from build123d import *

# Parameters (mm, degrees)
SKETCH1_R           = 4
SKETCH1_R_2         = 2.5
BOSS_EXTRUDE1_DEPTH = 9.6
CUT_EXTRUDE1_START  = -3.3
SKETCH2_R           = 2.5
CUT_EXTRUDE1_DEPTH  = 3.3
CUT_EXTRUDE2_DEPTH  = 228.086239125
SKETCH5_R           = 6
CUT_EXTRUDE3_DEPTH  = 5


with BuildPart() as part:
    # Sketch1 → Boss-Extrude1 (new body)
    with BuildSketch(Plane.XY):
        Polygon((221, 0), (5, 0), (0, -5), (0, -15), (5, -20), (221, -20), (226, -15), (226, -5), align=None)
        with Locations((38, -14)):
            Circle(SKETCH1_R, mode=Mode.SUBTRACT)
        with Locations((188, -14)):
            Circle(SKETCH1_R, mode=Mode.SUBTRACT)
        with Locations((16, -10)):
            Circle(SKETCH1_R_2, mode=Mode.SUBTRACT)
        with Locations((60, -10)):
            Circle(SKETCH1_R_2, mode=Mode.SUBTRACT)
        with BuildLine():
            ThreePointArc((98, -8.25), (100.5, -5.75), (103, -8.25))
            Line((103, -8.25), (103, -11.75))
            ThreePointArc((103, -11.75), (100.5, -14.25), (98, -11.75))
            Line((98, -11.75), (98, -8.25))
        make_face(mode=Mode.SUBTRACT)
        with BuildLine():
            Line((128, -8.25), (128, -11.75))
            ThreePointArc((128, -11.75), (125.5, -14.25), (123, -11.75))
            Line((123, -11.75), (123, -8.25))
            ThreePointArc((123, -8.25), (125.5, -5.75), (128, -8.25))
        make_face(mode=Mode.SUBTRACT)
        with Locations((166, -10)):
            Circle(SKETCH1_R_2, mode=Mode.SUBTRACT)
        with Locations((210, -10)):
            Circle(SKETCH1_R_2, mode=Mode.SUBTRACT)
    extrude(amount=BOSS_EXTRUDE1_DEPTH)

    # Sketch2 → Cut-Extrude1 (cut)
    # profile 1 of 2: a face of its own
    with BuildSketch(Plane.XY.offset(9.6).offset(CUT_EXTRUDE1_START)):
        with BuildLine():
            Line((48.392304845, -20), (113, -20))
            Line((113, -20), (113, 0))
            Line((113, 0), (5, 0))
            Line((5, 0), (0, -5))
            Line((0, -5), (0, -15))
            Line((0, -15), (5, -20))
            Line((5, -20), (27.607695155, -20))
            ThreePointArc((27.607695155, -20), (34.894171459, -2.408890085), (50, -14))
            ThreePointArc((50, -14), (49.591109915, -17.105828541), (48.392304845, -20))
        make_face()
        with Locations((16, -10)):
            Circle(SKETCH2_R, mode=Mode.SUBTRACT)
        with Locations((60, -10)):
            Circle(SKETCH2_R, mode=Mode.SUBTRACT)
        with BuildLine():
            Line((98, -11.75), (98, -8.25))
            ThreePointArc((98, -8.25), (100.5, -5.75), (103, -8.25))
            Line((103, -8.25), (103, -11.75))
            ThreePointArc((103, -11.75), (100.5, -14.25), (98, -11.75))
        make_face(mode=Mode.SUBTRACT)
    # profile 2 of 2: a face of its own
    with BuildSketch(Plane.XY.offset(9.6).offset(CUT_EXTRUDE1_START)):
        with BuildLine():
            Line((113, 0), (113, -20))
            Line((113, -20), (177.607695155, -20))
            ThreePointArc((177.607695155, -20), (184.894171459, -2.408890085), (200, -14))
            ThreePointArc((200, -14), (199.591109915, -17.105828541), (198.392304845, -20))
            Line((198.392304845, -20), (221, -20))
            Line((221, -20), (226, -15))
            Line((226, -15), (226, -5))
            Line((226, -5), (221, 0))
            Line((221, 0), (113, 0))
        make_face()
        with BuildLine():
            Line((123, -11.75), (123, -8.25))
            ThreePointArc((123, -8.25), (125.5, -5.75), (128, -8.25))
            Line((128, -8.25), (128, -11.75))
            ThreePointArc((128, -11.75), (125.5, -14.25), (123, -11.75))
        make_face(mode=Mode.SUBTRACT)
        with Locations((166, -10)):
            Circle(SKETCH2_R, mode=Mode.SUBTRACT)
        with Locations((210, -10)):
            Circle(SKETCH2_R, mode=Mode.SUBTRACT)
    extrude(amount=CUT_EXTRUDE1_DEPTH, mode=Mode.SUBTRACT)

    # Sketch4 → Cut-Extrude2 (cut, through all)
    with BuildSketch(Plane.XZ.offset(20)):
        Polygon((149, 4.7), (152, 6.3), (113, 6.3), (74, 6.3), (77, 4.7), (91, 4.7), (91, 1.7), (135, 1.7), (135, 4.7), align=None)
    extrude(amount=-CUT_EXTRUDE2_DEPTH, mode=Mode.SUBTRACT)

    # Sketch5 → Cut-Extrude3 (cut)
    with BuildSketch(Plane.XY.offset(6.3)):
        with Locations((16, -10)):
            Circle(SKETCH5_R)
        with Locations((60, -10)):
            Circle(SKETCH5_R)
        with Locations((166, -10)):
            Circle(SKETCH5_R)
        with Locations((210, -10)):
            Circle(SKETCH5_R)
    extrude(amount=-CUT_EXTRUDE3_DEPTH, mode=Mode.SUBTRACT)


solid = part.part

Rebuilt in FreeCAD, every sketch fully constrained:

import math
import FreeCAD as App
import Part
import Sketcher
from FreeCAD import Vector

doc = App.newDocument("Part")
body = doc.addObject("PartDesign::Body", "Body")

sketch1 = body.newObject("Sketcher::SketchObject", "Sketch")
sketch1.AttachmentSupport = (doc.getObject("XY_Plane"), [""])
sketch1.MapMode = "FlatFace"
sketch1.addGeometry([
    Part.LineSegment(Vector(221, 0, 0), Vector(5, 0, 0)),
    Part.LineSegment(Vector(5, 0, 0), Vector(0, -5, 0)),
    Part.LineSegment(Vector(0, -5, 0), Vector(0, -15, 0)),
    Part.LineSegment(Vector(0, -15, 0), Vector(5, -20, 0)),
    Part.LineSegment(Vector(5, -20, 0), Vector(221, -20, 0)),
    Part.LineSegment(Vector(221, -20, 0), Vector(226, -15, 0)),
    Part.LineSegment(Vector(226, -15, 0), Vector(226, -5, 0)),
    Part.LineSegment(Vector(226, -5, 0), Vector(221, 0, 0)),
    Part.Circle(Vector(38, -14, 0), Vector(0, 0, 1), 4),
    Part.Circle(Vector(188, -14, 0), Vector(0, 0, 1), 4),
    Part.Circle(Vector(16, -10, 0), Vector(0, 0, 1), 2.5),
    Part.Circle(Vector(60, -10, 0), Vector(0, 0, 1), 2.5),
    Part.LineSegment(Vector(98, -11.8, 0), Vector(98, -8.2, 0)),
    Part.ArcOfCircle(Part.Circle(Vector(100.5, -8.2, 0), Vector(0, 0, 1), 2.5), math.radians(0), math.radians(180)),
    Part.LineSegment(Vector(103, -8.2, 0), Vector(103, -11.8, 0)),
    Part.ArcOfCircle(Part.Circle(Vector(100.5, -11.8, 0), Vector(0, 0, 1), 2.5), math.radians(180), math.radians(360)),
    Part.ArcOfCircle(Part.Circle(Vector(125.5, -8.2, 0), Vector(0, 0, 1), 2.5), math.radians(0), math.radians(180)),
    Part.LineSegment(Vector(128, -8.2, 0), Vector(128, -11.8, 0)),
    Part.ArcOfCircle(Part.Circle(Vector(125.5, -11.8, 0), Vector(0, 0, 1), 2.5), math.radians(180), math.radians(360)),
    Part.LineSegment(Vector(123, -11.8, 0), Vector(123, -8.2, 0)),
    Part.Circle(Vector(166, -10, 0), Vector(0, 0, 1), 2.5),
    Part.Circle(Vector(210, -10, 0), Vector(0, 0, 1), 2.5),
], False)
sketch1.addConstraint([
    Sketcher.Constraint("Coincident", 0, 2, 1, 1),
    Sketcher.Constraint("Coincident", 1, 2, 2, 1),
    Sketcher.Constraint("Coincident", 2, 2, 3, 1),
    Sketcher.Constraint("Coincident", 3, 2, 4, 1),
    Sketcher.Constraint("Coincident", 4, 2, 5, 1),
    Sketcher.Constraint("Coincident", 5, 2, 6, 1),
    Sketcher.Constraint("Coincident", 6, 2, 7, 1),
    Sketcher.Constraint("Coincident", 7, 2, 0, 1),
    Sketcher.Constraint("Tangent", 12, 2, 13, 2),
    Sketcher.Constraint("Tangent", 13, 1, 14, 1),
    Sketcher.Constraint("Tangent", 14, 2, 15, 2),
    Sketcher.Constraint("Tangent", 15, 1, 12, 1),
    Sketcher.Constraint("Tangent", 16, 1, 17, 1),
    Sketcher.Constraint("Tangent", 17, 2, 18, 2),
    Sketcher.Constraint("Tangent", 18, 1, 19, 1),
    Sketcher.Constraint("Tangent", 19, 2, 16, 2),
    Sketcher.Constraint("Horizontal", 0),
    Sketcher.Constraint("Vertical", 2),
    Sketcher.Constraint("Horizontal", 4),
    Sketcher.Constraint("Vertical", 6),
    Sketcher.Constraint("Vertical", 12),
    Sketcher.Constraint("Vertical", 14),
    Sketcher.Constraint("Vertical", 17),
    Sketcher.Constraint("Vertical", 19),
    Sketcher.Constraint("Equal", 8, 9),
    Sketcher.Constraint("Equal", 10, 11),
    Sketcher.Constraint("Equal", 11, 13),
    Sketcher.Constraint("Equal", 15, 16),
    Sketcher.Constraint("Equal", 18, 20),
    Sketcher.Constraint("Equal", 20, 21),
    Sketcher.Constraint("PointOnObject", 0, 2, -1),
    Sketcher.Constraint("PointOnObject", 1, 2, -2),
    Sketcher.Constraint("Perpendicular", 1, 3),
    Sketcher.Constraint("Perpendicular", 3, 5),
    Sketcher.Constraint("Perpendicular", 5, 7),
    Sketcher.Constraint("Horizontal", 8, 3, 9, 3),
    Sketcher.Constraint("Horizontal", 10, 3, 11, 3),
    Sketcher.Constraint("Horizontal", 13, 3, 16, 3),
    Sketcher.Constraint("Horizontal", 15, 3, 18, 3),
    Sketcher.Constraint("Horizontal", 11, 3, 20, 3),
    Sketcher.Constraint("Horizontal", 20, 3, 21, 3),
    Sketcher.Constraint("Horizontal", 2, 2, 5, 2),
    Sketcher.Constraint("Horizontal", 1, 2, 6, 2),
    Sketcher.Constraint("Vertical", 0, 2, 3, 2),
    Sketcher.Constraint("Vertical", 4, 2, 7, 2),
    Sketcher.Constraint("Diameter", 8, 8.0),
    Sketcher.Constraint("Diameter", 10, 5.0),
    Sketcher.Constraint("DistanceX", 0, 2, 0, 1, 216.0),
    Sketcher.Constraint("DistanceY", 2, 2, 2, 1, 10.0),
    Sketcher.Constraint("DistanceY", 12, 1, 12, 2, 3.5),
    Sketcher.Constraint("DistanceX", -1, 1, 8, 3, 38.0),
    Sketcher.Constraint("DistanceY", 8, 3, -1, 1, 14.0),
    Sketcher.Constraint("DistanceX", -1, 1, 9, 3, 188.0),
    Sketcher.Constraint("DistanceX", -1, 1, 10, 3, 16.0),
    Sketcher.Constraint("DistanceY", 10, 3, -1, 1, 10.0),
    Sketcher.Constraint("DistanceX", -1, 1, 11, 3, 60.0),
    Sketcher.Constraint("DistanceX", -1, 1, 20, 3, 166.0),
    Sketcher.Constraint("DistanceX", -1, 1, 21, 3, 210.0),
    Sketcher.Constraint("DistanceX", -1, 1, 0, 2, 5.0),
    Sketcher.Constraint("DistanceX", -1, 1, 12, 2, 98.0),
    Sketcher.Constraint("DistanceX", -1, 1, 16, 1, 128.0),
    Sketcher.Constraint("DistanceY", 13, 3, -1, 1, 8.25),
])
pad1 = body.newObject("PartDesign::Pad", "Pad")
pad1.Profile = sketch1
pad1.Length = 9.6

sketch2 = body.newObject("Sketcher::SketchObject", "Sketch001")
sketch2.AttachmentSupport = (doc.getObject("XY_Plane"), [""])
sketch2.MapMode = "FlatFace"
sketch2.AttachmentOffset = App.Placement(Vector(0, 0, 6.3), App.Rotation())
sketch2.addGeometry([
    Part.LineSegment(Vector(48.4, -20, 0), Vector(177.6, -20, 0)),
    Part.ArcOfCircle(Part.Circle(Vector(188, -14, 0), Vector(0, 0, 1), 12), math.radians(0), math.radians(210)),
    Part.ArcOfCircle(Part.Circle(Vector(188, -14, 0), Vector(0, 0, 1), 12), math.radians(-30), math.radians(0)),
    Part.LineSegment(Vector(198.4, -20, 0), Vector(221, -20, 0)),
    Part.LineSegment(Vector(221, -20, 0), Vector(226, -15, 0)),
    Part.LineSegment(Vector(226, -15, 0), Vector(226, -5, 0)),
    Part.LineSegment(Vector(226, -5, 0), Vector(221, 0, 0)),
    Part.LineSegment(Vector(221, 0, 0), Vector(5, 0, 0)),
    Part.LineSegment(Vector(5, 0, 0), Vector(0, -5, 0)),
    Part.LineSegment(Vector(0, -5, 0), Vector(0, -15, 0)),
    Part.LineSegment(Vector(0, -15, 0), Vector(5, -20, 0)),
    Part.LineSegment(Vector(5, -20, 0), Vector(27.6, -20, 0)),
    Part.ArcOfCircle(Part.Circle(Vector(38, -14, 0), Vector(0, 0, 1), 12), math.radians(0), math.radians(210)),
    Part.ArcOfCircle(Part.Circle(Vector(38, -14, 0), Vector(0, 0, 1), 12), math.radians(-30), math.radians(0)),
    Part.Circle(Vector(16, -10, 0), Vector(0, 0, 1), 2.5),
    Part.Circle(Vector(60, -10, 0), Vector(0, 0, 1), 2.5),
    Part.ArcOfCircle(Part.Circle(Vector(100.5, -11.8, 0), Vector(0, 0, 1), 2.5), math.radians(180), math.radians(360)),
    Part.LineSegment(Vector(98, -11.8, 0), Vector(98, -8.2, 0)),
    Part.ArcOfCircle(Part.Circle(Vector(100.5, -8.2, 0), Vector(0, 0, 1), 2.5), math.radians(0), math.radians(180)),
    Part.LineSegment(Vector(103, -8.2, 0), Vector(103, -11.8, 0)),
    Part.Circle(Vector(210, -10, 0), Vector(0, 0, 1), 2.5),
    Part.ArcOfCircle(Part.Circle(Vector(125.5, -11.8, 0), Vector(0, 0, 1), 2.5), math.radians(180), math.radians(360)),
    Part.LineSegment(Vector(123, -11.8, 0), Vector(123, -8.2, 0)),
    Part.ArcOfCircle(Part.Circle(Vector(125.5, -8.2, 0), Vector(0, 0, 1), 2.5), math.radians(0), math.radians(180)),
    Part.LineSegment(Vector(128, -8.2, 0), Vector(128, -11.8, 0)),
    Part.Circle(Vector(166, -10, 0), Vector(0, 0, 1), 2.5),
], False)
sketch2.addConstraint([
    Sketcher.Constraint("Coincident", 0, 2, 1, 2),
    Sketcher.Constraint("Tangent", 1, 1, 2, 2),
    Sketcher.Constraint("Coincident", 2, 1, 3, 1),
    Sketcher.Constraint("Coincident", 3, 2, 4, 1),
    Sketcher.Constraint("Coincident", 4, 2, 5, 1),
    Sketcher.Constraint("Coincident", 5, 2, 6, 1),
    Sketcher.Constraint("Coincident", 6, 2, 7, 1),
    Sketcher.Constraint("Coincident", 7, 2, 8, 1),
    Sketcher.Constraint("Coincident", 8, 2, 9, 1),
    Sketcher.Constraint("Coincident", 9, 2, 10, 1),
    Sketcher.Constraint("Coincident", 10, 2, 11, 1),
    Sketcher.Constraint("Coincident", 11, 2, 12, 2),
    Sketcher.Constraint("Tangent", 12, 1, 13, 2),
    Sketcher.Constraint("Coincident", 13, 1, 0, 1),
    Sketcher.Constraint("Tangent", 16, 1, 17, 1),
    Sketcher.Constraint("Tangent", 17, 2, 18, 2),
    Sketcher.Constraint("Tangent", 18, 1, 19, 1),
    Sketcher.Constraint("Tangent", 19, 2, 16, 2),
    Sketcher.Constraint("Tangent", 21, 1, 22, 1),
    Sketcher.Constraint("Tangent", 22, 2, 23, 2),
    Sketcher.Constraint("Tangent", 23, 1, 24, 1),
    Sketcher.Constraint("Tangent", 24, 2, 21, 2),
    Sketcher.Constraint("Horizontal", 0),
    Sketcher.Constraint("Horizontal", 3),
    Sketcher.Constraint("Vertical", 5),
    Sketcher.Constraint("Horizontal", 7),
    Sketcher.Constraint("Vertical", 9),
    Sketcher.Constraint("Horizontal", 11),
    Sketcher.Constraint("Vertical", 17),
    Sketcher.Constraint("Vertical", 19),
    Sketcher.Constraint("Vertical", 22),
    Sketcher.Constraint("Vertical", 24),
    Sketcher.Constraint("Equal", 1, 2),
    Sketcher.Constraint("Equal", 2, 12),
    Sketcher.Constraint("Equal", 12, 13),
    Sketcher.Constraint("Equal", 14, 15),
    Sketcher.Constraint("Equal", 15, 16),
    Sketcher.Constraint("Equal", 18, 20),
    Sketcher.Constraint("Equal", 20, 21),
    Sketcher.Constraint("Equal", 23, 25),
    Sketcher.Constraint("PointOnObject", 6, 2, -1),
    Sketcher.Constraint("PointOnObject", 8, 2, -2),
    Sketcher.Constraint("Perpendicular", 4, 6),
    Sketcher.Constraint("Perpendicular", 6, 8),
    Sketcher.Constraint("Perpendicular", 8, 10),
    Sketcher.Constraint("Horizontal", 2, 3, 12, 3),
    Sketcher.Constraint("Horizontal", 14, 3, 15, 3),
    Sketcher.Constraint("Horizontal", 15, 3, 20, 3),
    Sketcher.Constraint("Horizontal", 16, 3, 21, 3),
    Sketcher.Constraint("Horizontal", 18, 3, 23, 3),
    Sketcher.Constraint("Horizontal", 20, 3, 25, 3),
    Sketcher.Constraint("Horizontal", 13, 3, 1, 1),
    Sketcher.Constraint("Horizontal", 0, 2, 2, 1),
    Sketcher.Constraint("Horizontal", 5, 2, 8, 2),
    Sketcher.Constraint("Horizontal", 4, 2, 9, 2),
    Sketcher.Constraint("Horizontal", 3, 2, 10, 2),
    Sketcher.Constraint("Horizontal", 1, 1, 12, 1),
    Sketcher.Constraint("Vertical", 3, 2, 6, 2),
    Sketcher.Constraint("Vertical", 7, 2, 10, 2),
    Sketcher.Constraint("Equal", 3, 11),
    Sketcher.Constraint("Diameter", 14, 5.0),
    Sketcher.Constraint("Radius", 1, 12.0),
    Sketcher.Constraint("DistanceX", 7, 2, 7, 1, 216.0),
    Sketcher.Constraint("DistanceY", 5, 1, 5, 2, 10.0),
    Sketcher.Constraint("DistanceY", 17, 1, 17, 2, 3.5),
    Sketcher.Constraint("DistanceX", -1, 1, 1, 3, 188.0),
    Sketcher.Constraint("DistanceY", 1, 3, -1, 1, 14.0),
    Sketcher.Constraint("DistanceX", -1, 1, 12, 3, 38.0),
    Sketcher.Constraint("DistanceX", -1, 1, 14, 3, 16.0),
    Sketcher.Constraint("DistanceY", 14, 3, -1, 1, 10.0),
    Sketcher.Constraint("DistanceX", -1, 1, 15, 3, 60.0),
    Sketcher.Constraint("DistanceX", -1, 1, 20, 3, 210.0),
    Sketcher.Constraint("DistanceX", -1, 1, 25, 3, 166.0),
    Sketcher.Constraint("DistanceX", -1, 1, 16, 1, 98.0),
    Sketcher.Constraint("DistanceX", -1, 1, 21, 1, 123.0),
    Sketcher.Constraint("DistanceY", 16, 3, -1, 1, 11.75),
])
pocket1 = body.newObject("PartDesign::Pocket", "Pocket")
pocket1.Profile = sketch2
pocket1.Length = 3.3
pocket1.Reversed = True

sketch3 = body.newObject("Sketcher::SketchObject", "Sketch002")
sketch3.AttachmentSupport = (doc.getObject("XZ_Plane"), [""])
sketch3.MapMode = "FlatFace"
sketch3.AttachmentOffset = App.Placement(Vector(0, 0, 20), App.Rotation())
sketch3.addGeometry([
    Part.LineSegment(Vector(149, 4.7, 0), Vector(152, 6.3, 0)),
    Part.LineSegment(Vector(152, 6.3, 0), Vector(74, 6.3, 0)),
    Part.LineSegment(Vector(74, 6.3, 0), Vector(77, 4.7, 0)),
    Part.LineSegment(Vector(77, 4.7, 0), Vector(91, 4.7, 0)),
    Part.LineSegment(Vector(91, 4.7, 0), Vector(91, 1.7, 0)),
    Part.LineSegment(Vector(91, 1.7, 0), Vector(135, 1.7, 0)),
    Part.LineSegment(Vector(135, 1.7, 0), Vector(135, 4.7, 0)),
    Part.LineSegment(Vector(135, 4.7, 0), Vector(149, 4.7, 0)),
], False)
sketch3.addConstraint([
    Sketcher.Constraint("Coincident", 0, 2, 1, 1),
    Sketcher.Constraint("Coincident", 1, 2, 2, 1),
    Sketcher.Constraint("Coincident", 2, 2, 3, 1),
    Sketcher.Constraint("Coincident", 3, 2, 4, 1),
    Sketcher.Constraint("Coincident", 4, 2, 5, 1),
    Sketcher.Constraint("Coincident", 5, 2, 6, 1),
    Sketcher.Constraint("Coincident", 6, 2, 7, 1),
    Sketcher.Constraint("Coincident", 7, 2, 0, 1),
    Sketcher.Constraint("Horizontal", 1),
    Sketcher.Constraint("Horizontal", 3),
    Sketcher.Constraint("Vertical", 4),
    Sketcher.Constraint("Horizontal", 5),
    Sketcher.Constraint("Vertical", 6),
    Sketcher.Constraint("Horizontal", 7),
    Sketcher.Constraint("Horizontal", 3, 2, 6, 2),
    Sketcher.Constraint("Equal", 3, 7),
    Sketcher.Constraint("Equal", 0, 2),
    Sketcher.Constraint("DistanceX", 1, 2, 1, 1, 78.0),
    Sketcher.Constraint("DistanceX", 3, 1, 3, 2, 14.0),
    Sketcher.Constraint("DistanceX", 5, 1, 5, 2, 44.0),
    Sketcher.Constraint("DistanceY", 4, 2, 4, 1, 3.0),
    Sketcher.Constraint("DistanceX", -1, 1, 0, 2, 152.0),
    Sketcher.Constraint("Distance", 0, 3.4),
    Sketcher.Constraint("DistanceY", -1, 1, 0, 2, 6.3),
])
pocket2 = body.newObject("PartDesign::Pocket", "Pocket001")
pocket2.Profile = sketch3
pocket2.Type = "ThroughAll"

sketch4 = body.newObject("Sketcher::SketchObject", "Sketch003")
sketch4.AttachmentSupport = (doc.getObject("XY_Plane"), [""])
sketch4.MapMode = "FlatFace"
sketch4.AttachmentOffset = App.Placement(Vector(0, 0, 6.3), App.Rotation())
sketch4.addGeometry([
    Part.Circle(Vector(16, -10, 0), Vector(0, 0, 1), 6),
    Part.Circle(Vector(60, -10, 0), Vector(0, 0, 1), 6),
    Part.Circle(Vector(166, -10, 0), Vector(0, 0, 1), 6),
    Part.Circle(Vector(210, -10, 0), Vector(0, 0, 1), 6),
], False)
sketch4.addConstraint([
    Sketcher.Constraint("Equal", 0, 1),
    Sketcher.Constraint("Equal", 1, 2),
    Sketcher.Constraint("Equal", 2, 3),
    Sketcher.Constraint("Horizontal", 0, 3, 1, 3),
    Sketcher.Constraint("Horizontal", 1, 3, 2, 3),
    Sketcher.Constraint("Horizontal", 2, 3, 3, 3),
    Sketcher.Constraint("Diameter", 0, 12.0),
    Sketcher.Constraint("DistanceX", -1, 1, 0, 3, 16.0),
    Sketcher.Constraint("DistanceY", 0, 3, -1, 1, 10.0),
    Sketcher.Constraint("DistanceX", -1, 1, 1, 3, 60.0),
    Sketcher.Constraint("DistanceX", -1, 1, 2, 3, 166.0),
    Sketcher.Constraint("DistanceX", -1, 1, 3, 3, 210.0),
])
pocket3 = body.newObject("PartDesign::Pocket", "Pocket002")
pocket3.Profile = sketch4
pocket3.Length = 5

doc.recompute()
